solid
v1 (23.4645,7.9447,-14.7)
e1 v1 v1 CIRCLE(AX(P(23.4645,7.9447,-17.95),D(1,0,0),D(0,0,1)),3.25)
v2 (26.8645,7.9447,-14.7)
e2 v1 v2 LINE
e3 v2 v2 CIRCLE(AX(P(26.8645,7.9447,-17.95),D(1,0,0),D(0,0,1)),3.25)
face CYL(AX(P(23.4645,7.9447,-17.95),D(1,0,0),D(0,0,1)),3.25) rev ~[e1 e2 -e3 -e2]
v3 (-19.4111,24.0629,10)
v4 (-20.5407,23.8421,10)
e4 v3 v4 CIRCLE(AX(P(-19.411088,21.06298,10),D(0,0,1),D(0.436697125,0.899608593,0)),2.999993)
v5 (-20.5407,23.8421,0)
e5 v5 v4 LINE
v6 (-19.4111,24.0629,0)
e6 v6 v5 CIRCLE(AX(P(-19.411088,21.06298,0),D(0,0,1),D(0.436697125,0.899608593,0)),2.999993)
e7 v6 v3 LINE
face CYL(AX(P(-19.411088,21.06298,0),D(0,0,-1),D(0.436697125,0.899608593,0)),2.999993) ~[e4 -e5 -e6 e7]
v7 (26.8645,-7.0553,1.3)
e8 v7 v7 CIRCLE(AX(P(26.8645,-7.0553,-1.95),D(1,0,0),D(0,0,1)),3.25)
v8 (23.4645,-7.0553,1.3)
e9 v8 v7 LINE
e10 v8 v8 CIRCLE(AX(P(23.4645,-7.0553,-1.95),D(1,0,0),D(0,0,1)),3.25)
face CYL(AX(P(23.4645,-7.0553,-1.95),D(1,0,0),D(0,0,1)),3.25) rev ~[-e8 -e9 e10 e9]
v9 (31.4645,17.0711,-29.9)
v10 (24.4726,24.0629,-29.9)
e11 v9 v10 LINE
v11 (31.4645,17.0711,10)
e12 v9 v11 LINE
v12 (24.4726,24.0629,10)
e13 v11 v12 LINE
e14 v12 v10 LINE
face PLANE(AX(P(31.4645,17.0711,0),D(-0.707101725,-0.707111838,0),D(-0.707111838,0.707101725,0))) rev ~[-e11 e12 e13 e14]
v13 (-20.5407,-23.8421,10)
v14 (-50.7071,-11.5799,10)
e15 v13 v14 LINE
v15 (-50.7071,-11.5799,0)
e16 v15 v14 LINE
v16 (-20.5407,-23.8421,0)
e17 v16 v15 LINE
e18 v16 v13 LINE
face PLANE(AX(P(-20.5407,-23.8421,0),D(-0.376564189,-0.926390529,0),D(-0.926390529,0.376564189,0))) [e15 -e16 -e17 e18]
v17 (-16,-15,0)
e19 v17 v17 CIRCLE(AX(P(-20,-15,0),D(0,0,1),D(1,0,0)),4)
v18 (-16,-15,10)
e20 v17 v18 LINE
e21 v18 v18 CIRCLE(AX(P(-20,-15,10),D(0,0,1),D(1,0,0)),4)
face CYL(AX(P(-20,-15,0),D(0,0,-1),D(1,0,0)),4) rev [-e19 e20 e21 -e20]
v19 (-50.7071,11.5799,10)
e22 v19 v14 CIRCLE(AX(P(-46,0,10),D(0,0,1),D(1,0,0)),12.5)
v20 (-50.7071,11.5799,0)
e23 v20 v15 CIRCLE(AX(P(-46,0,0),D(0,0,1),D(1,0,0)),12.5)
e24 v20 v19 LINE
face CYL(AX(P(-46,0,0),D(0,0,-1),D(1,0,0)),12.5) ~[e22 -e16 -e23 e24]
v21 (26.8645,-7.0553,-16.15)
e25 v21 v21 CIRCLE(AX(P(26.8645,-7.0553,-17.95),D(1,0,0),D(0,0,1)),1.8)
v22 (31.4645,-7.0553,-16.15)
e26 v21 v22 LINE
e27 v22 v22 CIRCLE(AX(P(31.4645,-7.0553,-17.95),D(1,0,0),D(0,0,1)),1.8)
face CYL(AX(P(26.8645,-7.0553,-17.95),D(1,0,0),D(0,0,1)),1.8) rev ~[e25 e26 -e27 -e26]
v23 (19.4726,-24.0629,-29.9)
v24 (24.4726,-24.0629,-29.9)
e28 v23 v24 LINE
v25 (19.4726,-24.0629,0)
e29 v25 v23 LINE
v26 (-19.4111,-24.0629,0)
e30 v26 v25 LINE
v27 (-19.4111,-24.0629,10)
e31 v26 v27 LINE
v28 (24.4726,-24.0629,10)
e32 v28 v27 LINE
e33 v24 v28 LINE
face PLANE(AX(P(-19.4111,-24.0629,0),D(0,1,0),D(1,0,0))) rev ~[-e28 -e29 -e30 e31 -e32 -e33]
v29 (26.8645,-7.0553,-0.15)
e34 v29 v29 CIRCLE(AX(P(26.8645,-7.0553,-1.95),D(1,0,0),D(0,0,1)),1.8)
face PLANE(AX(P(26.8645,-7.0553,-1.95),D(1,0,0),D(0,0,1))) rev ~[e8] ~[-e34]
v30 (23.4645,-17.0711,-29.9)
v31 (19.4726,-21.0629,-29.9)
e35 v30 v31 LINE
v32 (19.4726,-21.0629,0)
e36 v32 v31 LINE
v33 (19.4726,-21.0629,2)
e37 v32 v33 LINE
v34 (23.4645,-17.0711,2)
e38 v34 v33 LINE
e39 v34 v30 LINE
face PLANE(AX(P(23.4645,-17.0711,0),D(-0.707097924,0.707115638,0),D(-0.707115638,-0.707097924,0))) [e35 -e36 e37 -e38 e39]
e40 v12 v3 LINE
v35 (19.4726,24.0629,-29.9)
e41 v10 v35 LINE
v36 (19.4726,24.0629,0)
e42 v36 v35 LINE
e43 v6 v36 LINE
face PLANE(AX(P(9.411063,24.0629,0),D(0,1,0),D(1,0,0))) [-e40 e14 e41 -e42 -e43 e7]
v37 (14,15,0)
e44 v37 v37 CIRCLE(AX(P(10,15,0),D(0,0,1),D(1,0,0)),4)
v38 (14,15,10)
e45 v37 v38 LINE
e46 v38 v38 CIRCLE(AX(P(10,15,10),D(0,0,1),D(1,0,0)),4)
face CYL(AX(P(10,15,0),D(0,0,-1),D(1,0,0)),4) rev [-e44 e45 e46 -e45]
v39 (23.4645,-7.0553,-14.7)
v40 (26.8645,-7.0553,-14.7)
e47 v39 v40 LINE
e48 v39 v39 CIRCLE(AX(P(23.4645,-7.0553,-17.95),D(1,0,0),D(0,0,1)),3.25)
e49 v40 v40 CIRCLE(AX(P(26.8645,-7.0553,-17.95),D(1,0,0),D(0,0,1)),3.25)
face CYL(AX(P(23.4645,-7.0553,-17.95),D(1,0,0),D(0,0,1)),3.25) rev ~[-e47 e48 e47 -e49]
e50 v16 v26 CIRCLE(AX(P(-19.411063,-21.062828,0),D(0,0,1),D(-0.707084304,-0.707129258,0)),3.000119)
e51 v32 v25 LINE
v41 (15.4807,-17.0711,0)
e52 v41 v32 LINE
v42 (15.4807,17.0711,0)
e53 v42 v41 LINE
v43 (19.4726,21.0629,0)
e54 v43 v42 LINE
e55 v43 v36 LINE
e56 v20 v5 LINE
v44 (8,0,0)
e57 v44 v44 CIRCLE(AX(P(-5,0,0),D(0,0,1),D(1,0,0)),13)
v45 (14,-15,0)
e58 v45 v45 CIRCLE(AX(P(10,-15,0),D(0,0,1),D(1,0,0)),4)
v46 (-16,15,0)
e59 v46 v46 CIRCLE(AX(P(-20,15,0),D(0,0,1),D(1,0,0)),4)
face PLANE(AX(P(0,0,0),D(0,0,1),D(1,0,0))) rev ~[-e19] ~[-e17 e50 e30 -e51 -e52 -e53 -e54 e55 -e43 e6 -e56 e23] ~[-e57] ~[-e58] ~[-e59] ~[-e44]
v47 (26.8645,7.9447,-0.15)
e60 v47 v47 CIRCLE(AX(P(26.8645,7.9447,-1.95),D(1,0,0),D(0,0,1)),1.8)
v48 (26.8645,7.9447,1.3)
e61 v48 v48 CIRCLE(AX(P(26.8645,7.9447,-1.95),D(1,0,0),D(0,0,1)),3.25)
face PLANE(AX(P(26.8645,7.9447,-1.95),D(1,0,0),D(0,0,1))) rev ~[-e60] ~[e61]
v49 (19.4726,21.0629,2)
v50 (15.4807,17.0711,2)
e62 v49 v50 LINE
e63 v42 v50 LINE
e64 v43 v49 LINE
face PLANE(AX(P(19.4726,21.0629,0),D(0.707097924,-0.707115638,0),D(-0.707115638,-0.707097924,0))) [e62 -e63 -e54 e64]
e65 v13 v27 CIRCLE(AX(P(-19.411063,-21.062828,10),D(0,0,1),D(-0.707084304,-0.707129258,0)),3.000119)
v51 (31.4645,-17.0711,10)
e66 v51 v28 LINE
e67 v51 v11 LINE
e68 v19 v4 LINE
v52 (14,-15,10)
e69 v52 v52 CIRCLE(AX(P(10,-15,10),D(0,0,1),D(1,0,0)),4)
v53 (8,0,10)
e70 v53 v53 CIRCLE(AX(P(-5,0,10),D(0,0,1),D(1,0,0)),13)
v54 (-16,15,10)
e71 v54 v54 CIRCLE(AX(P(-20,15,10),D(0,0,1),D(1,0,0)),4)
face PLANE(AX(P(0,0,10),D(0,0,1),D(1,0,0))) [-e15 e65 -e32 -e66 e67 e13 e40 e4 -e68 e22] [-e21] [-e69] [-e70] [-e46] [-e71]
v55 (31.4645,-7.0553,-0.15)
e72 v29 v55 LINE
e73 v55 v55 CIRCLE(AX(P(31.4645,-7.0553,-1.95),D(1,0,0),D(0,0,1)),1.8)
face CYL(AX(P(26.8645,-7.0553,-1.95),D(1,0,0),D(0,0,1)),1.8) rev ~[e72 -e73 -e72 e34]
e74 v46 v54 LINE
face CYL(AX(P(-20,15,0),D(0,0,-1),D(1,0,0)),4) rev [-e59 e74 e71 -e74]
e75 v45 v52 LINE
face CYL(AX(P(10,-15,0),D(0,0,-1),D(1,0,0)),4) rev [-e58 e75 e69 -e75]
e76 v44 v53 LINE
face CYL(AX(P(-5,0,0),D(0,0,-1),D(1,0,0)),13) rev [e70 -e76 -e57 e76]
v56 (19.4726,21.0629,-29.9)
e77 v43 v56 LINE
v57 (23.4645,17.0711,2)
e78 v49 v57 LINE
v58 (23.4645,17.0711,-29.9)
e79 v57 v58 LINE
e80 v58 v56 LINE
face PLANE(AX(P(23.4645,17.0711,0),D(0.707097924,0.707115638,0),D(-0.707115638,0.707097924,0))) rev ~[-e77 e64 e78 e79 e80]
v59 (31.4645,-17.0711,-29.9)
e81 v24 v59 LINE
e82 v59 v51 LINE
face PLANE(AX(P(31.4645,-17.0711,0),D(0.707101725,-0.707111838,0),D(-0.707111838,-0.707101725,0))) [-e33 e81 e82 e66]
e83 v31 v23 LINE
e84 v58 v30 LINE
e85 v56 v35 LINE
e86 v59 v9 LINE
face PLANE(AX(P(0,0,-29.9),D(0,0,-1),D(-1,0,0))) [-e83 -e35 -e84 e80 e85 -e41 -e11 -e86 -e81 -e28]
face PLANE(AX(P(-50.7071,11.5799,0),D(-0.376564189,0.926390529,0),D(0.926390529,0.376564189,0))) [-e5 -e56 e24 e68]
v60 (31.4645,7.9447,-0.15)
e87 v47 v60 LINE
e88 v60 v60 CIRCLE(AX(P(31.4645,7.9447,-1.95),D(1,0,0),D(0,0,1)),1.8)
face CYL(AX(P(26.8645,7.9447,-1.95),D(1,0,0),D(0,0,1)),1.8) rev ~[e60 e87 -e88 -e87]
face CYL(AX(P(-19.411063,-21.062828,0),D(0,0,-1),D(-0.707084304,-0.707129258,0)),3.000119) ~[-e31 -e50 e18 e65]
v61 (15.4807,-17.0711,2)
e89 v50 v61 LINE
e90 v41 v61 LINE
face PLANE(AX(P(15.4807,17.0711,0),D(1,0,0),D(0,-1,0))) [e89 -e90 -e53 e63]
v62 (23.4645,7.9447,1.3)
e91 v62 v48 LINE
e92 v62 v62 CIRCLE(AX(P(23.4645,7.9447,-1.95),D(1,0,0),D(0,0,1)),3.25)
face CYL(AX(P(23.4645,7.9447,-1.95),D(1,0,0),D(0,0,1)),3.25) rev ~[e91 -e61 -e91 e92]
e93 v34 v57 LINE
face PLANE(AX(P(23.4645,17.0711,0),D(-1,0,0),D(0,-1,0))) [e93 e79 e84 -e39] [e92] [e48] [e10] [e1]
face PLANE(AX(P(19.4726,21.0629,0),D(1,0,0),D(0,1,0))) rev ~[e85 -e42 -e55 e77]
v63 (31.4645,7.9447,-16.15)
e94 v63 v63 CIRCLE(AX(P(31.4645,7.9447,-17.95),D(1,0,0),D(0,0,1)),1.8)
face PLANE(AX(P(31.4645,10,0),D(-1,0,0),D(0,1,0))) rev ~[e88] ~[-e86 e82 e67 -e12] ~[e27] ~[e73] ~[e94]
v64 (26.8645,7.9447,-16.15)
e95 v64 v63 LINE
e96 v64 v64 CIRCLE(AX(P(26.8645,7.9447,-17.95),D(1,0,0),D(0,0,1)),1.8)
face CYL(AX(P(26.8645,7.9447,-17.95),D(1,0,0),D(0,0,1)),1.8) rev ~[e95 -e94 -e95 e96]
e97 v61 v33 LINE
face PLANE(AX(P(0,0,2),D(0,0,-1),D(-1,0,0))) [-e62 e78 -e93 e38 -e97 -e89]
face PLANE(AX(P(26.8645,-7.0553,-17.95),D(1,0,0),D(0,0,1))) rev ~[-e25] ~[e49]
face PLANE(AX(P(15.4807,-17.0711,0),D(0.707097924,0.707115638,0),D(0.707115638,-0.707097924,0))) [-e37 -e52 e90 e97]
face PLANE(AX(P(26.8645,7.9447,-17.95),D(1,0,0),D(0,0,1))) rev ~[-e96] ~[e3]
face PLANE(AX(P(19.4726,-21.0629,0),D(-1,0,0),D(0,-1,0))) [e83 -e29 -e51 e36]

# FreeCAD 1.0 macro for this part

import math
import FreeCAD as App
import Part
import Sketcher
from FreeCAD import Vector
Q = App.Units.Quantity

doc = App.newDocument("Part")
body = doc.addObject("PartDesign::Body", "Body")

# Sketch on XY plane
sketch1 = doc.addObject("Sketcher::SketchObject", "Sketch")
body.addObject(sketch1)
sketch1.AttachmentSupport = (doc.XY_Plane, [""])
sketch1.MapMode = "FlatFace"
sketch1.addGeometry([
    Part.ArcOfCircle(Part.Circle(Vector(-19.4, -21.1, 0), Vector(0, 0, 1), 3), math.radians(-112), math.radians(-90)),  # 0
    Part.LineSegment(Vector(-19.4, -24.1, 0), Vector(24.5, -24.1, 0)),  # 1
    Part.LineSegment(Vector(24.5, -24.1, 0), Vector(31.5, -17.1, 0)),  # 2
    Part.LineSegment(Vector(31.5, -17.1, 0), Vector(31.5, 17.1, 0)),  # 3
    Part.LineSegment(Vector(31.5, 17.1, 0), Vector(24.5, 24.1, 0)),  # 4
    Part.LineSegment(Vector(24.5, 24.1, 0), Vector(-19.4, 24.1, 0)),  # 5
    Part.ArcOfCircle(Part.Circle(Vector(-19.4, 21.1, 0), Vector(0, 0, 1), 3), math.radians(90), math.radians(112)),  # 6
    Part.LineSegment(Vector(-20.5, 23.8, 0), Vector(-50.7, 11.6, 0)),  # 7
    Part.ArcOfCircle(Part.Circle(Vector(-46, 0, 0), Vector(0, 0, 1), 12.5), math.radians(112), math.radians(248)),  # 8
    Part.LineSegment(Vector(-50.7, -11.6, 0), Vector(-20.5, -23.8, 0)),  # 9
    Part.Circle(Vector(-20, -15, 0), Vector(0, 0, 1), 4),  # 10
    Part.Circle(Vector(10, -15, 0), Vector(0, 0, 1), 4),  # 11
    Part.Circle(Vector(-5, 0, 0), Vector(0, 0, 1), 13),  # 12
    Part.Circle(Vector(-20, 15, 0), Vector(0, 0, 1), 4),  # 13
    Part.Circle(Vector(10, 15, 0), Vector(0, 0, 1), 4),  # 14
], False)
sketch1.addConstraint([
    Sketcher.Constraint("Tangent", 0, 2, 1, 1),
    Sketcher.Constraint("Coincident", 1, 2, 2, 1),
    Sketcher.Constraint("Coincident", 2, 2, 3, 1),
    Sketcher.Constraint("Coincident", 3, 2, 4, 1),
    Sketcher.Constraint("Coincident", 4, 2, 5, 1),
    Sketcher.Constraint("Tangent", 5, 2, 6, 1),
    Sketcher.Constraint("Tangent", 6, 2, 7, 1),
    Sketcher.Constraint("Tangent", 7, 2, 8, 1),
    Sketcher.Constraint("Tangent", 8, 2, 9, 1),
    Sketcher.Constraint("Tangent", 9, 2, 0, 1),
    Sketcher.Constraint("Horizontal", 1),
    Sketcher.Constraint("Vertical", 3),
    Sketcher.Constraint("Horizontal", 5),
    Sketcher.Constraint("Equal", 0, 6),
    Sketcher.Constraint("Equal", 10, 11),
    Sketcher.Constraint("Equal", 11, 13),
    Sketcher.Constraint("Equal", 13, 14),
    Sketcher.Constraint("Symmetric", 0, 3, 6, 3, -1),
    Sketcher.Constraint("Symmetric", 10, 3, 13, 3, -1),
    Sketcher.Constraint("Symmetric", 11, 3, 14, 3, -1),
    Sketcher.Constraint("PointOnObject", 8, 3, -1),
    Sketcher.Constraint("PointOnObject", 12, 3, -1),
    Sketcher.Constraint("Perpendicular", 2, 4),
    Sketcher.Constraint("Horizontal", 10, 3, 11, 3),
    Sketcher.Constraint("Vertical", 1, 2, 4, 2),
    Sketcher.Constraint("Equal", 2, 4),
    Sketcher.Constraint("Radius", 8, Q("12.5 mm")),
    Sketcher.Constraint("Diameter", 10, Q("8 mm")),
    Sketcher.Constraint("Diameter", 12, Q("26 mm")),
    Sketcher.Constraint("DistanceX", 8, 3, -1, 1, Q("46 mm")),
    Sketcher.Constraint("DistanceX", 12, 3, -1, 1, Q("5 mm")),
    Sketcher.Constraint("Radius", 0, Q("3 mm")),
    Sketcher.Constraint("DistanceX", 10, 3, -1, 1, Q("20 mm")),
    Sketcher.Constraint("DistanceY", 10, 3, -1, 1, Q("15 mm")),
    Sketcher.Constraint("DistanceX", -1, 1, 11, 3, Q("10 mm")),
    Sketcher.Constraint("Angle", 7, Q("-157.879 deg")),
    Sketcher.Constraint("Distance", 2, Q("9.888 mm")),
    Sketcher.Constraint("DistanceX", 1, 1, 1, 2, Q("43.8837 mm")),
    Sketcher.Constraint("DistanceY", 3, 1, 3, 2, Q("34.1422 mm")),
])
pad1 = doc.addObject("PartDesign::Pad", "Pad")
body.addObject(pad1)
pad1.Profile = sketch1
pad1.Length = 10

# Sketch on XY plane
sketch2 = doc.addObject("Sketcher::SketchObject", "Sketch001")
body.addObject(sketch2)
sketch2.AttachmentSupport = (doc.XY_Plane, [""])
sketch2.MapMode = "FlatFace"
sketch2.addGeometry([
    Part.LineSegment(Vector(31.5, -17.1, 0), Vector(24.5, -24.1, 0)),  # 0
    Part.LineSegment(Vector(24.5, -24.1, 0), Vector(19.5, -24.1, 0)),  # 1
    Part.LineSegment(Vector(19.5, -24.1, 0), Vector(19.5, -21.1, 0)),  # 2
    Part.LineSegment(Vector(19.5, -21.1, 0), Vector(23.5, -17.1, 0)),  # 3
    Part.LineSegment(Vector(23.5, -17.1, 0), Vector(23.5, 17.1, 0)),  # 4
    Part.LineSegment(Vector(23.5, 17.1, 0), Vector(19.5, 21.1, 0)),  # 5
    Part.LineSegment(Vector(19.5, 21.1, 0), Vector(19.5, 24.1, 0)),  # 6
    Part.LineSegment(Vector(19.5, 24.1, 0), Vector(24.5, 24.1, 0)),  # 7
    Part.LineSegment(Vector(24.5, 24.1, 0), Vector(31.5, 17.1, 0)),  # 8
    Part.LineSegment(Vector(31.5, 17.1, 0), Vector(31.5, -17.1, 0)),  # 9
], False)
sketch2.addConstraint([
    Sketcher.Constraint("Coincident", 0, 2, 1, 1),
    Sketcher.Constraint("Coincident", 1, 2, 2, 1),
    Sketcher.Constraint("Coincident", 2, 2, 3, 1),
    Sketcher.Constraint("Coincident", 3, 2, 4, 1),
    Sketcher.Constraint("Coincident", 4, 2, 5, 1),
    Sketcher.Constraint("Coincident", 5, 2, 6, 1),
    Sketcher.Constraint("Coincident", 6, 2, 7, 1),
    Sketcher.Constraint("Coincident", 7, 2, 8, 1),
    Sketcher.Constraint("Coincident", 8, 2, 9, 1),
    Sketcher.Constraint("Coincident", 9, 2, 0, 1),
    Sketcher.Constraint("Horizontal", 1),
    Sketcher.Constraint("Vertical", 2),
    Sketcher.Constraint("Vertical", 4),
    Sketcher.Constraint("Vertical", 6),
    Sketcher.Constraint("Horizontal", 7),
    Sketcher.Constraint("Vertical", 9),
    Sketcher.Constraint("Symmetric", 2, 2, 5, 2, -1),
    Sketcher.Constraint("Symmetric", 0, 2, 7, 2, -1),
    Sketcher.Constraint("Parallel", 0, 3),
    Sketcher.Constraint("Perpendicular", 3, 5),
    Sketcher.Constraint("Parallel", 5, 8),
    Sketcher.Constraint("Horizontal", 4, 2, 8, 2),
    Sketcher.Constraint("Horizontal", 3, 2, 9, 2),
    Sketcher.Constraint("DistanceY", 2, 1, 2, 2, Q("3 mm")),
    Sketcher.Constraint("DistanceX", 4, 2, 8, 2, Q("8 mm")),
    Sketcher.Constraint("Distance", 0, Q("9.888 mm")),
    Sketcher.Constraint("DistanceY", 4, 1, 4, 2, Q("34.1422 mm")),
    Sketcher.Constraint("DistanceX", -1, 1, 0, 2, Q("24.4726 mm")),
])
pad2 = doc.addObject("PartDesign::Pad", "Pad001")
body.addObject(pad2)
pad2.Profile = sketch2
pad2.Length = 29.9
pad2.Reversed = True

# Sketch on YZ plane
sketch3 = doc.addObject("Sketcher::SketchObject", "Sketch002")
body.addObject(sketch3)
sketch3.AttachmentSupport = (doc.YZ_Plane, [""])
sketch3.MapMode = "FlatFace"
sketch3.AttachmentOffset = App.Placement(Vector(0, 0, 23.4645), App.Rotation())
sketch3.addGeometry([
    Part.Circle(Vector(7.9, -1.9, 0), Vector(0, 0, 1), 1.8),
    Part.Circle(Vector(7.9, -17.9, 0), Vector(0, 0, 1), 1.8),
    Part.Circle(Vector(-7.1, -17.9, 0), Vector(0, 0, 1), 1.8),
    Part.Circle(Vector(-7.1, -1.9, 0), Vector(0, 0, 1), 1.8),
], False)
sketch3.addConstraint([
    Sketcher.Constraint("Equal", 0, 1),
    Sketcher.Constraint("Equal", 1, 2),
    Sketcher.Constraint("Equal", 2, 3),
    Sketcher.Constraint("Horizontal", 1, 3, 2, 3),
    Sketcher.Constraint("Horizontal", 0, 3, 3, 3),
    Sketcher.Constraint("Vertical", 0, 3, 1, 3),
    Sketcher.Constraint("Vertical", 2, 3, 3, 3),
    Sketcher.Constraint("Diameter", 0, Q("3.6 mm")),
    Sketcher.Constraint("DistanceY", 1, 3, 0, 3, Q("16 mm")),
    Sketcher.Constraint("DistanceX", 2, 3, 1, 3, Q("15 mm")),
    Sketcher.Constraint("DistanceY", 0, 3, -1, 1, Q("1.95 mm")),
    Sketcher.Constraint("DistanceX", -1, 1, 0, 3, Q("7.9447 mm")),
])
doc.recompute()
hole = doc.addObject("PartDesign::Hole", "Hole")
body.addObject(hole)
hole.Profile = sketch3
hole.ThreadType = "None"
hole.Diameter = 3.6
hole.DepthType = "ThroughAll"
hole.HoleCutType = "Counterbore"
hole.HoleCutDiameter = 6.5
hole.HoleCutDepth = 3.4
hole.Reversed = True

# Sketch on XY plane
sketch4 = doc.addObject("Sketcher::SketchObject", "Sketch003")
body.addObject(sketch4)
sketch4.AttachmentSupport = (doc.XY_Plane, [""])
sketch4.MapMode = "FlatFace"
sketch4.addGeometry([
    Part.LineSegment(Vector(15, 17, 0), Vector(19, 21, 0)),  # 0
    Part.LineSegment(Vector(19, 21, 0), Vector(23, 17, 0)),  # 1
    Part.LineSegment(Vector(23, 17, 0), Vector(23, -17, 0)),  # 2
    Part.LineSegment(Vector(23, -17, 0), Vector(19, -21, 0)),  # 3
    Part.LineSegment(Vector(19, -21, 0), Vector(15, -17, 0)),  # 4
    Part.LineSegment(Vector(15, -17, 0), Vector(15, 17, 0)),  # 5
], False)
sketch4.addConstraint([
    Sketcher.Constraint("Coincident", 0, 2, 1, 1),
    Sketcher.Constraint("Coincident", 1, 2, 2, 1),
    Sketcher.Constraint("Coincident", 2, 2, 3, 1),
    Sketcher.Constraint("Coincident", 3, 2, 4, 1),
    Sketcher.Constraint("Coincident", 4, 2, 5, 1),
    Sketcher.Constraint("Coincident", 5, 2, 0, 1),
    Sketcher.Constraint("Vertical", 2),
    Sketcher.Constraint("Vertical", 5),
    Sketcher.Constraint("Symmetric", 0, 2, 3, 2, -1),
    Sketcher.Constraint("Perpendicular", 0, 1),
    Sketcher.Constraint("Perpendicular", 1, 3),
    Sketcher.Constraint("Perpendicular", 3, 4),
    Sketcher.Constraint("Horizontal", 2, 2, 4, 2),
    Sketcher.Constraint("Horizontal", 1, 2, 5, 2),
    Sketcher.Constraint("DistanceY", 2, 2, 2, 1, Q("34.1422 mm")),
    Sketcher.Constraint("DistanceY", -1, 1, 0, 2, Q("21.063 mm")),
    Sketcher.Constraint("DistanceX", -1, 1, 0, 2, Q("19.4726 mm")),
])
pocket1 = doc.addObject("PartDesign::Pocket", "Pocket")
body.addObject(pocket1)
pocket1.Profile = sketch4
pocket1.Length = 2
pocket1.Reversed = True

doc.recompute()
